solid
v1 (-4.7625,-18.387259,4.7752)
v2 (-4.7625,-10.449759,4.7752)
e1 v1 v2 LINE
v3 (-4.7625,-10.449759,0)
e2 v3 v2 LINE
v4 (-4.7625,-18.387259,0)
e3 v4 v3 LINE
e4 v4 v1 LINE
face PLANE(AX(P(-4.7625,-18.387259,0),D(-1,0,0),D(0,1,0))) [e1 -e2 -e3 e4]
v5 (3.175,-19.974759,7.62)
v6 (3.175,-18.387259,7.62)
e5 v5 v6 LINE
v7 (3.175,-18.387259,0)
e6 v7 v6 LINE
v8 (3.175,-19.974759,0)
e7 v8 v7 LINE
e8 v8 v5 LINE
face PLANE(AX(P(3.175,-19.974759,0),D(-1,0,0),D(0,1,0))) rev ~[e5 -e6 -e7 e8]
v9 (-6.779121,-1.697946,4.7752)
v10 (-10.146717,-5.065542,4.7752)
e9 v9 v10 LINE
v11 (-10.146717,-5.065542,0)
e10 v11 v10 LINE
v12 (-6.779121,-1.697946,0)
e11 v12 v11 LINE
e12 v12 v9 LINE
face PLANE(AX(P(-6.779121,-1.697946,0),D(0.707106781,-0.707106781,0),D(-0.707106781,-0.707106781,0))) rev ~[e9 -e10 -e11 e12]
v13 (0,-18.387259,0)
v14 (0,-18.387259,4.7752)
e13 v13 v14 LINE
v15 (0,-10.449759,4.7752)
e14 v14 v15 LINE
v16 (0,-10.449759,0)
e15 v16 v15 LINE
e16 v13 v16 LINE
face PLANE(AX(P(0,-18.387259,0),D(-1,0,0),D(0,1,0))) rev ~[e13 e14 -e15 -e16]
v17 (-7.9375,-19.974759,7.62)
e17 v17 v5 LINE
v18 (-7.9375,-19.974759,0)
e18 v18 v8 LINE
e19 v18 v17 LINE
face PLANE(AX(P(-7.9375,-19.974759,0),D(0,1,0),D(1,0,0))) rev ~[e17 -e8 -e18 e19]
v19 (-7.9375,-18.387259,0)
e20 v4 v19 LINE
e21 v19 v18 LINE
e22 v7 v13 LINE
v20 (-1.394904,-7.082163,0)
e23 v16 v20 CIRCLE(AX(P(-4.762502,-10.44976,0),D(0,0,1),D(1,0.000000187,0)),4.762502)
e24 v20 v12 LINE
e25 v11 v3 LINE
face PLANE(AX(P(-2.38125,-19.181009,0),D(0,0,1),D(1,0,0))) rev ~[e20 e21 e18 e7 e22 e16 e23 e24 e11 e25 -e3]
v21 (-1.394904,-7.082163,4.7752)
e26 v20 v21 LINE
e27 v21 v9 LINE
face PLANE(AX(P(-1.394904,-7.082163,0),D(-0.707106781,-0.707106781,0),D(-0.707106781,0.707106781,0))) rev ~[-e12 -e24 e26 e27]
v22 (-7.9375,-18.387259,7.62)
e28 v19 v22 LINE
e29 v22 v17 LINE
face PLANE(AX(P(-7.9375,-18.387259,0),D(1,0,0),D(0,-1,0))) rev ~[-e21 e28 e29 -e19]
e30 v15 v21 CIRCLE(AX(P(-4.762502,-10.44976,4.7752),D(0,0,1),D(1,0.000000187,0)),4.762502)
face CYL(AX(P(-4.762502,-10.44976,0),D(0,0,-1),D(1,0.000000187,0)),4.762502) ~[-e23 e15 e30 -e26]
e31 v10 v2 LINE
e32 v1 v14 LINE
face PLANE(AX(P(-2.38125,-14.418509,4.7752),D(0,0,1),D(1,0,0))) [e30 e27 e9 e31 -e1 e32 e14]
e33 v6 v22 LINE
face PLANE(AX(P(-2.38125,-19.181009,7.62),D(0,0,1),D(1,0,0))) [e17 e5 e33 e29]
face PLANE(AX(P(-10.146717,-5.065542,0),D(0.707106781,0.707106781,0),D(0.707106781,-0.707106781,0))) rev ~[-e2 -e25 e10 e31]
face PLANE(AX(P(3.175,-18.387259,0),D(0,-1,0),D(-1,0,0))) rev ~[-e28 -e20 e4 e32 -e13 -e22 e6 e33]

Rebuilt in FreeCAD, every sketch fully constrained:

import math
import FreeCAD as App
import Part
import Sketcher

V = App.Vector
Q = App.Units.Quantity


def add_polygon(sketch, points):
    """Adds a closed chain of lines whose ends are joined by coincident constraints."""
    first, n = sketch.GeometryCount, len(points)
    for a, b in zip(points, points[1:] + points[:1]):
        sketch.addGeometry(Part.LineSegment(App.Vector(*a, 0), App.Vector(*b, 0)), False)
    for i in range(n):
        sketch.addConstraint(Sketcher.Constraint("Coincident", first + i, 2, first + (i + 1) % n, 1))

doc = App.newDocument("Part")
body = doc.addObject("PartDesign::Body", "Body")

sketch1 = doc.addObject("Sketcher::SketchObject", "Sketch")
body.addObject(sketch1)
sketch1.AttachmentSupport = (doc.XY_Plane, [""])
sketch1.MapMode = "FlatFace"
add_polygon(sketch1, [(-7.9375, -18.387259), (-7.9375, -19.974759), (3.175, -19.974759), (3.175, -18.387259)])
sketch1.addConstraint([
    Sketcher.Constraint("Vertical", 0),
    Sketcher.Constraint("Horizontal", 1),
    Sketcher.Constraint("Vertical", 2),
    Sketcher.Constraint("Horizontal", 3),
    Sketcher.Constraint("DistanceX", 1, 1, 1, 2, Q("0.4375 in")),
    Sketcher.Constraint("DistanceY", 0, 2, 0, 1, Q("0.0625 in")),
    Sketcher.Constraint("DistanceX", 0, 2, -1, 1, Q("0.3125 in")),
    Sketcher.Constraint("DistanceY", 0, 2, -1, 1, Q("19.974759 mm")),
])
pad1 = doc.addObject("PartDesign::Pad", "Pad")
body.addObject(pad1)
pad1.Profile = sketch1
pad1.Length = Q("0.3 in")

sketch2 = doc.addObject("Sketcher::SketchObject", "Sketch001")
body.addObject(sketch2)
sketch2.AttachmentSupport = (doc.XY_Plane, [""])
sketch2.MapMode = "FlatFace"
sketch2.addGeometry([
    Part.LineSegment(V(-4.7625, -10.449759, 0), V(-4.7625, -18.387259, 0)),
    Part.LineSegment(V(-4.7625, -18.387259, 0), V(0, -18.387259, 0)),
    Part.LineSegment(V(0, -18.387259, 0), V(0, -10.449759, 0)),
    Part.ArcOfCircle(Part.Circle(V(-4.762502, -10.44976, 0), V(0, 0, 1), 4.762502), math.radians(0.000011), math.radians(44.999991)),
    Part.LineSegment(V(-1.394904, -7.082163, 0), V(-6.779121, -1.697946, 0)),
    Part.LineSegment(V(-6.779121, -1.697946, 0), V(-10.146717, -5.065542, 0)),
    Part.LineSegment(V(-10.146717, -5.065542, 0), V(-4.7625, -10.449759, 0)),
], False)
sketch2.addConstraint([
    Sketcher.Constraint("Coincident", 0, 2, 1, 1),
    Sketcher.Constraint("Coincident", 1, 2, 2, 1),
    Sketcher.Constraint("Tangent", 2, 2, 3, 1),
    Sketcher.Constraint("Tangent", 3, 2, 4, 1),
    Sketcher.Constraint("Coincident", 4, 2, 5, 1),
    Sketcher.Constraint("Coincident", 5, 2, 6, 1),
    Sketcher.Constraint("Coincident", 6, 2, 0, 1),
    Sketcher.Constraint("Vertical", 0),
    Sketcher.Constraint("Horizontal", 1),
    Sketcher.Constraint("Vertical", 2),
    Sketcher.Constraint("Coincident", 6, 2, 3, 3),
    Sketcher.Constraint("PointOnObject", 1, 2, -2),
    Sketcher.Constraint("Perpendicular", 4, 5),
    Sketcher.Constraint("Perpendicular", 5, 6),
    Sketcher.Constraint("Angle", 4, Q("135 deg")),
    Sketcher.Constraint("Radius", 3, Q("0.1875001 in")),
    Sketcher.Constraint("DistanceY", 0, 2, 0, 1, Q("0.3125 in")),
    Sketcher.Constraint("DistanceY", 3, 3, -1, 1, Q("10.44976 mm")),
    Sketcher.Constraint("DistanceX", 4, 2, -1, 1, Q("6.779121 mm")),
])
pad2 = doc.addObject("PartDesign::Pad", "Pad001")
body.addObject(pad2)
pad2.Profile = sketch2
pad2.Length = Q("0.188 in")
body2 = doc.addObject("PartDesign::Body", "Body001")

sketch3 = doc.addObject("Sketcher::SketchObject", "Sketch002")
body2.addObject(sketch3)
sketch3.AttachmentSupport = (doc.getObject("XY_Plane001"), [""])
sketch3.MapMode = "FlatFace"
add_polygon(sketch3, [(11.011543, 3.299114), (11.011543, -22.100886), (49.111543, -22.100886), (49.111543, 3.299114)])
add_polygon(sketch3, [(27.521543, -11.940886), (27.521543, -6.860886), (32.601543, -6.860886), (32.601543, -11.940886)])
sketch3.addConstraint([
    Sketcher.Constraint("Vertical", 0),
    Sketcher.Constraint("Horizontal", 1),
    Sketcher.Constraint("Vertical", 2),
    Sketcher.Constraint("Horizontal", 3),
    Sketcher.Constraint("Vertical", 4),
    Sketcher.Constraint("Horizontal", 5),
    Sketcher.Constraint("Vertical", 6),
    Sketcher.Constraint("Horizontal", 7),
    Sketcher.Constraint("Equal", 7, 4),
    Sketcher.Constraint("DistanceY", 0, 2, 0, 1, Q("1 in")),
    Sketcher.Constraint("DistanceX", 1, 1, 1, 2, Q("1.5 in")),
    Sketcher.Constraint("DistanceX", 5, 1, 5, 2, Q("0.2 in")),
    Sketcher.Constraint("DistanceY", 4, 2, 3, 2, Q("0.4 in")),
    Sketcher.Constraint("DistanceX", 3, 2, 4, 2, Q("0.65 in")),
    Sketcher.Constraint("DistanceX", -1, 1, 0, 2, Q("11.011543 mm")),
    Sketcher.Constraint("DistanceY", 0, 2, -1, 1, Q("22.100886 mm")),
])
pad3 = doc.addObject("PartDesign::Pad", "Pad002")
body2.addObject(pad3)
pad3.Profile = sketch3
pad3.Length = Q("0.125 in")
body2.Visibility = False

doc.recompute()
